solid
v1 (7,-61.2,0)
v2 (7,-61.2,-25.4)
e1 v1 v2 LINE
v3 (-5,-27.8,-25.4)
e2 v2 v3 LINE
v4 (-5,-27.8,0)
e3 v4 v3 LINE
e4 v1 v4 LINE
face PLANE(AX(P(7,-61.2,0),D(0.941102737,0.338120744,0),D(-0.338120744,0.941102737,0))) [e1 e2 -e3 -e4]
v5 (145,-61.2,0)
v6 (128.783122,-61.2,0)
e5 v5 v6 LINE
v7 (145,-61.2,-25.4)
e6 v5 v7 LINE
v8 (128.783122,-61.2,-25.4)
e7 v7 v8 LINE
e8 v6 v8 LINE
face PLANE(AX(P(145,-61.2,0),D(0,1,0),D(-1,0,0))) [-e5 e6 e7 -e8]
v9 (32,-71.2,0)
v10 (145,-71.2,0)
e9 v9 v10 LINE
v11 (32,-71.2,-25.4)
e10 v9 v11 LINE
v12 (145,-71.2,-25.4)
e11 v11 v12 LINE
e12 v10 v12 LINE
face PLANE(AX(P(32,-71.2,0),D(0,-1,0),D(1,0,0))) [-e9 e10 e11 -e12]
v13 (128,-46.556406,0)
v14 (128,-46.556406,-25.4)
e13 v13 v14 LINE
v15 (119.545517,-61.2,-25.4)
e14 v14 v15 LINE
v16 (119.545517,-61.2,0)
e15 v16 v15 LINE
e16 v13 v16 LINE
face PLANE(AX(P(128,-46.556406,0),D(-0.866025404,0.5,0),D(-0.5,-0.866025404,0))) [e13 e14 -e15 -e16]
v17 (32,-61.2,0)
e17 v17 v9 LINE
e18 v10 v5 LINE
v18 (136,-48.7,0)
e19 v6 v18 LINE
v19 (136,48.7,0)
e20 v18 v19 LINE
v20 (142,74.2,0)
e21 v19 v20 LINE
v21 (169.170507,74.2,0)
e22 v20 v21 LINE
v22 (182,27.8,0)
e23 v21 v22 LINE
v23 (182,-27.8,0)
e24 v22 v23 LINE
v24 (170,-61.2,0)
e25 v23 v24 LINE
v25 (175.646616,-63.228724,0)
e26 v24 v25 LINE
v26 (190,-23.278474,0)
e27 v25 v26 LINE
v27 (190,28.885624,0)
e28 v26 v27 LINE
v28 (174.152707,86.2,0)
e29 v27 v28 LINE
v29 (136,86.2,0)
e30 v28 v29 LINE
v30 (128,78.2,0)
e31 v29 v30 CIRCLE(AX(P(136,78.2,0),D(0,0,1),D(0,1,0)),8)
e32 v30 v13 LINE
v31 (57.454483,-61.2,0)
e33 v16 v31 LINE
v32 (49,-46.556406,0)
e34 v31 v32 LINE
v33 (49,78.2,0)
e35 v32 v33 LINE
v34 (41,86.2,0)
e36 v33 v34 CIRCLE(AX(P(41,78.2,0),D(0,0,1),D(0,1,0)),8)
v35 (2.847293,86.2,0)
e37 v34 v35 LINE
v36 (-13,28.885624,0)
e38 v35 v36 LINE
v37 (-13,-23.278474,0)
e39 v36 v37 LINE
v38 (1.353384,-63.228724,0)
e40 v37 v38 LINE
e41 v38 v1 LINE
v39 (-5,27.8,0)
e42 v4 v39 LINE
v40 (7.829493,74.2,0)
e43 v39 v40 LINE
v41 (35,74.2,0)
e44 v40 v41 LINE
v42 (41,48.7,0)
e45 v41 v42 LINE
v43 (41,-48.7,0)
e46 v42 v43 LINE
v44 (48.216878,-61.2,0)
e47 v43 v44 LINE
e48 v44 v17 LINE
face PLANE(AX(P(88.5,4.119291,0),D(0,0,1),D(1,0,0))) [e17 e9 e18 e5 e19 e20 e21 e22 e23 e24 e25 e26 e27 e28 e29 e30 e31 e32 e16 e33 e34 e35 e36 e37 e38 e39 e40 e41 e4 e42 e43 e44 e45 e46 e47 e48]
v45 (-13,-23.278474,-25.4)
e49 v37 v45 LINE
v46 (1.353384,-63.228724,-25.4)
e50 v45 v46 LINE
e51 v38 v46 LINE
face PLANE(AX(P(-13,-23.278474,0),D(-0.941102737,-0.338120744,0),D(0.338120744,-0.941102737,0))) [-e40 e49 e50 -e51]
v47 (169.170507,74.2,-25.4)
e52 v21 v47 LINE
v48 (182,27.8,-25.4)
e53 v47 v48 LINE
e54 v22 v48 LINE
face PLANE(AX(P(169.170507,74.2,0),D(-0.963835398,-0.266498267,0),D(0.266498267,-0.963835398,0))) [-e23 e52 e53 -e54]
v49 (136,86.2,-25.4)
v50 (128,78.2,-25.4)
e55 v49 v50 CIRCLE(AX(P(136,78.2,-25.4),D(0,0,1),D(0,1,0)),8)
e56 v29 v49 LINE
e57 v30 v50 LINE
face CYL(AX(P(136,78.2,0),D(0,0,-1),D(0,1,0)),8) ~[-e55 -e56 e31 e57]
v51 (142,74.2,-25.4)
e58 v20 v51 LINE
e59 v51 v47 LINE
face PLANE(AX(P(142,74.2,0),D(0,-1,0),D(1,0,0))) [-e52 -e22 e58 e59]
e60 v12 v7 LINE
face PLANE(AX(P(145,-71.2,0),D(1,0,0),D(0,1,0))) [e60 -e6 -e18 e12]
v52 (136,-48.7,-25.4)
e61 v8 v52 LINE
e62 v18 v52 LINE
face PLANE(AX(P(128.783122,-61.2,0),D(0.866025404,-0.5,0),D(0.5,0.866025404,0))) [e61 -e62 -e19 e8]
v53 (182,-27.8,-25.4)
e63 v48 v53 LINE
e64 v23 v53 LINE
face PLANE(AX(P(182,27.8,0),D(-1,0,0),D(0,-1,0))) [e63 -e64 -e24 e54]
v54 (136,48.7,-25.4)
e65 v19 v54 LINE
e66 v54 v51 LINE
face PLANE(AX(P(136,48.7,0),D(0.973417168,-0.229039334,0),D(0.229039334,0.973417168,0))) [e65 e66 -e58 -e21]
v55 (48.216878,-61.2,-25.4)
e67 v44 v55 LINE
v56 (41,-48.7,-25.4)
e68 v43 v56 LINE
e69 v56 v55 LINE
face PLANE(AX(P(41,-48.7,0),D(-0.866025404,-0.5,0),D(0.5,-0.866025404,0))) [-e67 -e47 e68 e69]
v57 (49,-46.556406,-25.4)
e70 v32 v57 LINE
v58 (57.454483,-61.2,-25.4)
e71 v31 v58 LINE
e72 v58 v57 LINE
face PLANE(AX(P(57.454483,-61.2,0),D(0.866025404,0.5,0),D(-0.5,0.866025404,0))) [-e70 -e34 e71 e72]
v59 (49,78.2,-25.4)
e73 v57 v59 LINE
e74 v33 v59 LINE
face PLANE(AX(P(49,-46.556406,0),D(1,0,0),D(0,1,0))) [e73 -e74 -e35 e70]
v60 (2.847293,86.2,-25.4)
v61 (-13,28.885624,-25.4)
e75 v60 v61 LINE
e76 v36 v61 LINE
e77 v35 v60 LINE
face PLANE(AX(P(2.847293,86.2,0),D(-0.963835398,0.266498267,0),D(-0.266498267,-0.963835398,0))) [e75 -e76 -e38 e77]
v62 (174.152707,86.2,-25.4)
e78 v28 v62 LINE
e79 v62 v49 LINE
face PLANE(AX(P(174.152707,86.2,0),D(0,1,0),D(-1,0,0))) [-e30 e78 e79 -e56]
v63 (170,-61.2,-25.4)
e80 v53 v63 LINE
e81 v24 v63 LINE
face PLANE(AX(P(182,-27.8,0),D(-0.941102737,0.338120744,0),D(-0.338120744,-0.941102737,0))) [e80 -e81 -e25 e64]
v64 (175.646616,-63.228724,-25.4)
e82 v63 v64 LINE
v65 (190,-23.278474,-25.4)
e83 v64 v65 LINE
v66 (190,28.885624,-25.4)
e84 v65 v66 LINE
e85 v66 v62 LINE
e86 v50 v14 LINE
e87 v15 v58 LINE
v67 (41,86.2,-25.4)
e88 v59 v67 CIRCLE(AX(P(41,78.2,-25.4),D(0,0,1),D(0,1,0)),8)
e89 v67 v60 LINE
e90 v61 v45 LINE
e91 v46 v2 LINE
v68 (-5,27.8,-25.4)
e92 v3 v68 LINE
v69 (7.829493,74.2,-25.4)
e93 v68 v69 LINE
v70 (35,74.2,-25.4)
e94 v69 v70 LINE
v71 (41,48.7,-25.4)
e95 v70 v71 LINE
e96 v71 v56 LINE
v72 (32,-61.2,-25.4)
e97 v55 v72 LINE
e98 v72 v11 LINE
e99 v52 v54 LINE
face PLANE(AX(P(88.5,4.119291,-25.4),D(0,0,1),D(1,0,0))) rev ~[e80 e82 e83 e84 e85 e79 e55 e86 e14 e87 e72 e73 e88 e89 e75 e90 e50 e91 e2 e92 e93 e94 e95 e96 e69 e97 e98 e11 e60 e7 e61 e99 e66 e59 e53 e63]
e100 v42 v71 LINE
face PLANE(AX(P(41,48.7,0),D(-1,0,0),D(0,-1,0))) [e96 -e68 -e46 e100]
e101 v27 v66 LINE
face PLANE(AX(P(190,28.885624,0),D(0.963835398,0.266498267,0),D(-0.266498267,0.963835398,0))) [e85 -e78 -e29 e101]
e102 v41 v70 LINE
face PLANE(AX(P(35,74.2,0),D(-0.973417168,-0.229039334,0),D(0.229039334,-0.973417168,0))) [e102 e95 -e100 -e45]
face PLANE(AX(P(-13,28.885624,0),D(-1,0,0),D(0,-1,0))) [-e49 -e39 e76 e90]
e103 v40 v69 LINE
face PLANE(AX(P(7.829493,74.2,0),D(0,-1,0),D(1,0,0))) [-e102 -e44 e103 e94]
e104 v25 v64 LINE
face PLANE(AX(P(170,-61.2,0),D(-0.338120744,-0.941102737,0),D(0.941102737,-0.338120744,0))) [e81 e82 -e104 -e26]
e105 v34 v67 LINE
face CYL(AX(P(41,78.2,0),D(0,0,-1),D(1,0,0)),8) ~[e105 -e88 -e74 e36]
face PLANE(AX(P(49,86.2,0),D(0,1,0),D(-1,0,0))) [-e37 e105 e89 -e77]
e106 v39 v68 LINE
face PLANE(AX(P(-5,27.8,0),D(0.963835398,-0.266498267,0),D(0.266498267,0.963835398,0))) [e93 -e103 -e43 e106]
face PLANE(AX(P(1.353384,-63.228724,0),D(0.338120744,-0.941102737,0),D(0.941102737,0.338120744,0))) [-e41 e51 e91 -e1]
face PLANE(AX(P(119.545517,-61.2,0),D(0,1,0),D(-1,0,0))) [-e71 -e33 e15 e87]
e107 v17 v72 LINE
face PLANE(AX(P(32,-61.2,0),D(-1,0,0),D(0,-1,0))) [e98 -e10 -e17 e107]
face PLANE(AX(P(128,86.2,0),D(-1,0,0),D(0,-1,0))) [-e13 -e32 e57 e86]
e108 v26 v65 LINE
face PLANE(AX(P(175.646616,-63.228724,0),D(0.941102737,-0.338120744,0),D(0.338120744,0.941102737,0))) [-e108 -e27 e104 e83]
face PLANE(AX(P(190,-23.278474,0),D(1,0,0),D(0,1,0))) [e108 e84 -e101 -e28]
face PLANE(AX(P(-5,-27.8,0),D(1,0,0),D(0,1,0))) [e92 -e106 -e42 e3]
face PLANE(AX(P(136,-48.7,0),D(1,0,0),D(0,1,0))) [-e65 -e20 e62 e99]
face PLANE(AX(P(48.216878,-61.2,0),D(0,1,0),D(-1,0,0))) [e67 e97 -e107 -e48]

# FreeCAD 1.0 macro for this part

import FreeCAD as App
import Part
import Sketcher
from FreeCAD import Vector
Q = App.Units.Quantity


def edges_at(feature, points):
    """Names of the edges that pass closest to the given points."""
    edges = feature.Shape.Edges
    near = lambda p: min(range(len(edges)), key=lambda i: edges[i].distToShape(Part.Vertex(*p))[0])
    return sorted({f"Edge{near(p) + 1}" for p in points})


def add_polygon(sketch, points):
    """Adds a closed chain of lines whose ends are joined by coincident constraints."""
    first, n = sketch.GeometryCount, len(points)
    for a, b in zip(points, points[1:] + points[:1]):
        sketch.addGeometry(Part.LineSegment(App.Vector(*a, 0), App.Vector(*b, 0)), False)
    for i in range(n):
        sketch.addConstraint(Sketcher.Constraint("Coincident", first + i, 2, first + (i + 1) % n, 1))

doc = App.newDocument("Part")
body = doc.addObject("PartDesign::Body", "Body")

# Sketch on XY plane
sketch1 = body.newObject("Sketcher::SketchObject", "Sketch")
sketch1.AttachmentSupport = (doc.getObject("XY_Plane"), [""])
sketch1.MapMode = "FlatFace"
add_polygon(sketch1, [(7, -61), (-5, -28), (-5, 28), (8, 74), (35, 74), (41, 49), (41, -49), (48, -61), (32, -61), (32, -71), (145, -71), (145, -61), (129, -61), (136, -49), (136, 49), (142, 74), (169, 74), (182, 28), (182, -28), (170, -61), (176, -63), (190, -23), (190, 29), (174, 86), (128, 86), (128, -47), (120, -61), (57, -61), (49, -47), (49, 86), (3, 86), (-13, 29), (-13, -23), (1, -63)])  # lines 0-33
sketch1.addConstraint(Sketcher.Constraint("Vertical", 1))
sketch1.addConstraint(Sketcher.Constraint("Horizontal", 3))
sketch1.addConstraint(Sketcher.Constraint("Vertical", 5))
sketch1.addConstraint(Sketcher.Constraint("Horizontal", 7))
sketch1.addConstraint(Sketcher.Constraint("Vertical", 8))
sketch1.addConstraint(Sketcher.Constraint("Horizontal", 9))
sketch1.addConstraint(Sketcher.Constraint("Vertical", 10))
sketch1.addConstraint(Sketcher.Constraint("Horizontal", 11))
sketch1.addConstraint(Sketcher.Constraint("Vertical", 13))
sketch1.addConstraint(Sketcher.Constraint("Horizontal", 15))
sketch1.addConstraint(Sketcher.Constraint("Vertical", 17))
sketch1.addConstraint(Sketcher.Constraint("Vertical", 21))
sketch1.addConstraint(Sketcher.Constraint("Horizontal", 23))
sketch1.addConstraint(Sketcher.Constraint("Vertical", 24))
sketch1.addConstraint(Sketcher.Constraint("Horizontal", 26))
sketch1.addConstraint(Sketcher.Constraint("Vertical", 28))
sketch1.addConstraint(Sketcher.Constraint("Horizontal", 29))
sketch1.addConstraint(Sketcher.Constraint("Vertical", 31))
sketch1.addConstraint(Sketcher.Constraint("Perpendicular", 18, 19))
sketch1.addConstraint(Sketcher.Constraint("Perpendicular", 19, 20))
sketch1.addConstraint(Sketcher.Constraint("Parallel", 16, 22))
sketch1.addConstraint(Sketcher.Constraint("Parallel", 12, 25))
sketch1.addConstraint(Sketcher.Constraint("Parallel", 6, 27))
sketch1.addConstraint(Sketcher.Constraint("Parallel", 2, 30))
sketch1.addConstraint(Sketcher.Constraint("Parallel", 0, 32))
sketch1.addConstraint(Sketcher.Constraint("Perpendicular", 32, 33))
sketch1.addConstraint(Sketcher.Constraint("Horizontal", 7, 2, 10, 2))
sketch1.addConstraint(Sketcher.Constraint("Horizontal", 5, 2, 12, 2))
sketch1.addConstraint(Sketcher.Constraint("Horizontal", 4, 2, 13, 2))
sketch1.addConstraint(Sketcher.Constraint("Horizontal", 3, 2, 14, 2))
sketch1.addConstraint(Sketcher.Constraint("Horizontal", 1, 2, 16, 2))
sketch1.addConstraint(Sketcher.Constraint("Horizontal", 0, 2, 17, 2))
sketch1.addConstraint(Sketcher.Constraint("Horizontal", 11, 2, 18, 2))
sketch1.addConstraint(Sketcher.Constraint("Horizontal", 18, 2, 25, 2))
sketch1.addConstraint(Sketcher.Constraint("Horizontal", 24, 2, 27, 2))
sketch1.addConstraint(Sketcher.Constraint("Horizontal", 23, 2, 28, 2))
sketch1.addConstraint(Sketcher.Constraint("Horizontal", 21, 2, 30, 2))
sketch1.addConstraint(Sketcher.Constraint("Horizontal", 20, 2, 31, 2))
sketch1.addConstraint(Sketcher.Constraint("Horizontal", 19, 2, 32, 2))
sketch1.addConstraint(Sketcher.Constraint("Horizontal", 26, 2, 33, 2))
sketch1.addConstraint(Sketcher.Constraint("Equal", 7, 11))
sketch1.addConstraint(Sketcher.Constraint("Equal", 3, 15))
sketch1.addConstraint(Sketcher.Constraint("Equal", 23, 29))
sketch1.addConstraint(Sketcher.Constraint("Equal", 6, 12))
sketch1.addConstraint(Sketcher.Constraint("Equal", 4, 14))
sketch1.addConstraint(Sketcher.Constraint("Equal", 2, 16))
sketch1.addConstraint(Sketcher.Constraint("Equal", 0, 18))
sketch1.addConstraint(Sketcher.Constraint("DistanceX", 9, 1, 9, 2, Q("113 mm")))
sketch1.addConstraint(Sketcher.Constraint("DistanceY", 8, 2, 8, 1, Q("10 mm")))
sketch1.addConstraint(Sketcher.Constraint("Angle", 6, Q("-60 deg")))
sketch1.addConstraint(Sketcher.Constraint("Distance", 19, Q("6 mm")))
sketch1.addConstraint(Sketcher.Constraint("DistanceY", 1, 1, 1, 2, Q("55.6 mm")))
sketch1.addConstraint(Sketcher.Constraint("DistanceY", 5, 2, 5, 1, Q("97.4 mm")))
sketch1.addConstraint(Sketcher.Constraint("DistanceX", 0, 2, -1, 1, Q("5 mm")))
sketch1.addConstraint(Sketcher.Constraint("DistanceX", -1, 1, 3, 2, Q("35 mm")))
sketch1.addConstraint(Sketcher.Constraint("DistanceX", -1, 1, 4, 2, Q("41 mm")))
sketch1.addConstraint(Sketcher.Constraint("DistanceX", -1, 1, 7, 2, Q("32 mm")))
sketch1.addConstraint(Sketcher.Constraint("DistanceX", -1, 1, 18, 2, Q("170 mm")))
sketch1.addConstraint(Sketcher.Constraint("DistanceX", -1, 1, 20, 2, Q("190 mm")))
sketch1.addConstraint(Sketcher.Constraint("DistanceX", -1, 1, 23, 2, Q("128 mm")))
sketch1.addConstraint(Sketcher.Constraint("DistanceY", 0, 2, 2, 2, Q("102 mm")))
sketch1.addConstraint(Sketcher.Constraint("DistanceY", 6, 2, 1, 2, Q("89 mm")))
sketch1.addConstraint(Sketcher.Constraint("DistanceY", 15, 2, 22, 2, Q("12 mm")))
sketch1.addConstraint(Sketcher.Constraint("DistanceY", 0, 2, -1, 1, Q("27.8 mm")))
sketch1.addConstraint(Sketcher.Constraint("DistanceY", -1, 1, 4, 2, Q("48.7 mm")))
sketch1.addConstraint(Sketcher.Constraint("Distance", 2, Q("48.141 mm")))
sketch1.addConstraint(Sketcher.Constraint("Distance", 22, Q("59.464901 mm")))
sketch1.addConstraint(Sketcher.Constraint("DistanceX", 26, 2, 26, 1, Q("62.091035 mm")))
pad1 = body.newObject("PartDesign::Pad", "Pad")
pad1.Profile = sketch1
pad1.Length = 25.4
pad1.Reversed = True
doc.recompute()

fillet = body.newObject("PartDesign::Fillet", "Fillet")
fillet.Base = (pad1, edges_at(pad1, [(49, 86.2, -12.7), (128, 86.2, -12.7)]))
fillet.Radius = 8

doc.recompute()
